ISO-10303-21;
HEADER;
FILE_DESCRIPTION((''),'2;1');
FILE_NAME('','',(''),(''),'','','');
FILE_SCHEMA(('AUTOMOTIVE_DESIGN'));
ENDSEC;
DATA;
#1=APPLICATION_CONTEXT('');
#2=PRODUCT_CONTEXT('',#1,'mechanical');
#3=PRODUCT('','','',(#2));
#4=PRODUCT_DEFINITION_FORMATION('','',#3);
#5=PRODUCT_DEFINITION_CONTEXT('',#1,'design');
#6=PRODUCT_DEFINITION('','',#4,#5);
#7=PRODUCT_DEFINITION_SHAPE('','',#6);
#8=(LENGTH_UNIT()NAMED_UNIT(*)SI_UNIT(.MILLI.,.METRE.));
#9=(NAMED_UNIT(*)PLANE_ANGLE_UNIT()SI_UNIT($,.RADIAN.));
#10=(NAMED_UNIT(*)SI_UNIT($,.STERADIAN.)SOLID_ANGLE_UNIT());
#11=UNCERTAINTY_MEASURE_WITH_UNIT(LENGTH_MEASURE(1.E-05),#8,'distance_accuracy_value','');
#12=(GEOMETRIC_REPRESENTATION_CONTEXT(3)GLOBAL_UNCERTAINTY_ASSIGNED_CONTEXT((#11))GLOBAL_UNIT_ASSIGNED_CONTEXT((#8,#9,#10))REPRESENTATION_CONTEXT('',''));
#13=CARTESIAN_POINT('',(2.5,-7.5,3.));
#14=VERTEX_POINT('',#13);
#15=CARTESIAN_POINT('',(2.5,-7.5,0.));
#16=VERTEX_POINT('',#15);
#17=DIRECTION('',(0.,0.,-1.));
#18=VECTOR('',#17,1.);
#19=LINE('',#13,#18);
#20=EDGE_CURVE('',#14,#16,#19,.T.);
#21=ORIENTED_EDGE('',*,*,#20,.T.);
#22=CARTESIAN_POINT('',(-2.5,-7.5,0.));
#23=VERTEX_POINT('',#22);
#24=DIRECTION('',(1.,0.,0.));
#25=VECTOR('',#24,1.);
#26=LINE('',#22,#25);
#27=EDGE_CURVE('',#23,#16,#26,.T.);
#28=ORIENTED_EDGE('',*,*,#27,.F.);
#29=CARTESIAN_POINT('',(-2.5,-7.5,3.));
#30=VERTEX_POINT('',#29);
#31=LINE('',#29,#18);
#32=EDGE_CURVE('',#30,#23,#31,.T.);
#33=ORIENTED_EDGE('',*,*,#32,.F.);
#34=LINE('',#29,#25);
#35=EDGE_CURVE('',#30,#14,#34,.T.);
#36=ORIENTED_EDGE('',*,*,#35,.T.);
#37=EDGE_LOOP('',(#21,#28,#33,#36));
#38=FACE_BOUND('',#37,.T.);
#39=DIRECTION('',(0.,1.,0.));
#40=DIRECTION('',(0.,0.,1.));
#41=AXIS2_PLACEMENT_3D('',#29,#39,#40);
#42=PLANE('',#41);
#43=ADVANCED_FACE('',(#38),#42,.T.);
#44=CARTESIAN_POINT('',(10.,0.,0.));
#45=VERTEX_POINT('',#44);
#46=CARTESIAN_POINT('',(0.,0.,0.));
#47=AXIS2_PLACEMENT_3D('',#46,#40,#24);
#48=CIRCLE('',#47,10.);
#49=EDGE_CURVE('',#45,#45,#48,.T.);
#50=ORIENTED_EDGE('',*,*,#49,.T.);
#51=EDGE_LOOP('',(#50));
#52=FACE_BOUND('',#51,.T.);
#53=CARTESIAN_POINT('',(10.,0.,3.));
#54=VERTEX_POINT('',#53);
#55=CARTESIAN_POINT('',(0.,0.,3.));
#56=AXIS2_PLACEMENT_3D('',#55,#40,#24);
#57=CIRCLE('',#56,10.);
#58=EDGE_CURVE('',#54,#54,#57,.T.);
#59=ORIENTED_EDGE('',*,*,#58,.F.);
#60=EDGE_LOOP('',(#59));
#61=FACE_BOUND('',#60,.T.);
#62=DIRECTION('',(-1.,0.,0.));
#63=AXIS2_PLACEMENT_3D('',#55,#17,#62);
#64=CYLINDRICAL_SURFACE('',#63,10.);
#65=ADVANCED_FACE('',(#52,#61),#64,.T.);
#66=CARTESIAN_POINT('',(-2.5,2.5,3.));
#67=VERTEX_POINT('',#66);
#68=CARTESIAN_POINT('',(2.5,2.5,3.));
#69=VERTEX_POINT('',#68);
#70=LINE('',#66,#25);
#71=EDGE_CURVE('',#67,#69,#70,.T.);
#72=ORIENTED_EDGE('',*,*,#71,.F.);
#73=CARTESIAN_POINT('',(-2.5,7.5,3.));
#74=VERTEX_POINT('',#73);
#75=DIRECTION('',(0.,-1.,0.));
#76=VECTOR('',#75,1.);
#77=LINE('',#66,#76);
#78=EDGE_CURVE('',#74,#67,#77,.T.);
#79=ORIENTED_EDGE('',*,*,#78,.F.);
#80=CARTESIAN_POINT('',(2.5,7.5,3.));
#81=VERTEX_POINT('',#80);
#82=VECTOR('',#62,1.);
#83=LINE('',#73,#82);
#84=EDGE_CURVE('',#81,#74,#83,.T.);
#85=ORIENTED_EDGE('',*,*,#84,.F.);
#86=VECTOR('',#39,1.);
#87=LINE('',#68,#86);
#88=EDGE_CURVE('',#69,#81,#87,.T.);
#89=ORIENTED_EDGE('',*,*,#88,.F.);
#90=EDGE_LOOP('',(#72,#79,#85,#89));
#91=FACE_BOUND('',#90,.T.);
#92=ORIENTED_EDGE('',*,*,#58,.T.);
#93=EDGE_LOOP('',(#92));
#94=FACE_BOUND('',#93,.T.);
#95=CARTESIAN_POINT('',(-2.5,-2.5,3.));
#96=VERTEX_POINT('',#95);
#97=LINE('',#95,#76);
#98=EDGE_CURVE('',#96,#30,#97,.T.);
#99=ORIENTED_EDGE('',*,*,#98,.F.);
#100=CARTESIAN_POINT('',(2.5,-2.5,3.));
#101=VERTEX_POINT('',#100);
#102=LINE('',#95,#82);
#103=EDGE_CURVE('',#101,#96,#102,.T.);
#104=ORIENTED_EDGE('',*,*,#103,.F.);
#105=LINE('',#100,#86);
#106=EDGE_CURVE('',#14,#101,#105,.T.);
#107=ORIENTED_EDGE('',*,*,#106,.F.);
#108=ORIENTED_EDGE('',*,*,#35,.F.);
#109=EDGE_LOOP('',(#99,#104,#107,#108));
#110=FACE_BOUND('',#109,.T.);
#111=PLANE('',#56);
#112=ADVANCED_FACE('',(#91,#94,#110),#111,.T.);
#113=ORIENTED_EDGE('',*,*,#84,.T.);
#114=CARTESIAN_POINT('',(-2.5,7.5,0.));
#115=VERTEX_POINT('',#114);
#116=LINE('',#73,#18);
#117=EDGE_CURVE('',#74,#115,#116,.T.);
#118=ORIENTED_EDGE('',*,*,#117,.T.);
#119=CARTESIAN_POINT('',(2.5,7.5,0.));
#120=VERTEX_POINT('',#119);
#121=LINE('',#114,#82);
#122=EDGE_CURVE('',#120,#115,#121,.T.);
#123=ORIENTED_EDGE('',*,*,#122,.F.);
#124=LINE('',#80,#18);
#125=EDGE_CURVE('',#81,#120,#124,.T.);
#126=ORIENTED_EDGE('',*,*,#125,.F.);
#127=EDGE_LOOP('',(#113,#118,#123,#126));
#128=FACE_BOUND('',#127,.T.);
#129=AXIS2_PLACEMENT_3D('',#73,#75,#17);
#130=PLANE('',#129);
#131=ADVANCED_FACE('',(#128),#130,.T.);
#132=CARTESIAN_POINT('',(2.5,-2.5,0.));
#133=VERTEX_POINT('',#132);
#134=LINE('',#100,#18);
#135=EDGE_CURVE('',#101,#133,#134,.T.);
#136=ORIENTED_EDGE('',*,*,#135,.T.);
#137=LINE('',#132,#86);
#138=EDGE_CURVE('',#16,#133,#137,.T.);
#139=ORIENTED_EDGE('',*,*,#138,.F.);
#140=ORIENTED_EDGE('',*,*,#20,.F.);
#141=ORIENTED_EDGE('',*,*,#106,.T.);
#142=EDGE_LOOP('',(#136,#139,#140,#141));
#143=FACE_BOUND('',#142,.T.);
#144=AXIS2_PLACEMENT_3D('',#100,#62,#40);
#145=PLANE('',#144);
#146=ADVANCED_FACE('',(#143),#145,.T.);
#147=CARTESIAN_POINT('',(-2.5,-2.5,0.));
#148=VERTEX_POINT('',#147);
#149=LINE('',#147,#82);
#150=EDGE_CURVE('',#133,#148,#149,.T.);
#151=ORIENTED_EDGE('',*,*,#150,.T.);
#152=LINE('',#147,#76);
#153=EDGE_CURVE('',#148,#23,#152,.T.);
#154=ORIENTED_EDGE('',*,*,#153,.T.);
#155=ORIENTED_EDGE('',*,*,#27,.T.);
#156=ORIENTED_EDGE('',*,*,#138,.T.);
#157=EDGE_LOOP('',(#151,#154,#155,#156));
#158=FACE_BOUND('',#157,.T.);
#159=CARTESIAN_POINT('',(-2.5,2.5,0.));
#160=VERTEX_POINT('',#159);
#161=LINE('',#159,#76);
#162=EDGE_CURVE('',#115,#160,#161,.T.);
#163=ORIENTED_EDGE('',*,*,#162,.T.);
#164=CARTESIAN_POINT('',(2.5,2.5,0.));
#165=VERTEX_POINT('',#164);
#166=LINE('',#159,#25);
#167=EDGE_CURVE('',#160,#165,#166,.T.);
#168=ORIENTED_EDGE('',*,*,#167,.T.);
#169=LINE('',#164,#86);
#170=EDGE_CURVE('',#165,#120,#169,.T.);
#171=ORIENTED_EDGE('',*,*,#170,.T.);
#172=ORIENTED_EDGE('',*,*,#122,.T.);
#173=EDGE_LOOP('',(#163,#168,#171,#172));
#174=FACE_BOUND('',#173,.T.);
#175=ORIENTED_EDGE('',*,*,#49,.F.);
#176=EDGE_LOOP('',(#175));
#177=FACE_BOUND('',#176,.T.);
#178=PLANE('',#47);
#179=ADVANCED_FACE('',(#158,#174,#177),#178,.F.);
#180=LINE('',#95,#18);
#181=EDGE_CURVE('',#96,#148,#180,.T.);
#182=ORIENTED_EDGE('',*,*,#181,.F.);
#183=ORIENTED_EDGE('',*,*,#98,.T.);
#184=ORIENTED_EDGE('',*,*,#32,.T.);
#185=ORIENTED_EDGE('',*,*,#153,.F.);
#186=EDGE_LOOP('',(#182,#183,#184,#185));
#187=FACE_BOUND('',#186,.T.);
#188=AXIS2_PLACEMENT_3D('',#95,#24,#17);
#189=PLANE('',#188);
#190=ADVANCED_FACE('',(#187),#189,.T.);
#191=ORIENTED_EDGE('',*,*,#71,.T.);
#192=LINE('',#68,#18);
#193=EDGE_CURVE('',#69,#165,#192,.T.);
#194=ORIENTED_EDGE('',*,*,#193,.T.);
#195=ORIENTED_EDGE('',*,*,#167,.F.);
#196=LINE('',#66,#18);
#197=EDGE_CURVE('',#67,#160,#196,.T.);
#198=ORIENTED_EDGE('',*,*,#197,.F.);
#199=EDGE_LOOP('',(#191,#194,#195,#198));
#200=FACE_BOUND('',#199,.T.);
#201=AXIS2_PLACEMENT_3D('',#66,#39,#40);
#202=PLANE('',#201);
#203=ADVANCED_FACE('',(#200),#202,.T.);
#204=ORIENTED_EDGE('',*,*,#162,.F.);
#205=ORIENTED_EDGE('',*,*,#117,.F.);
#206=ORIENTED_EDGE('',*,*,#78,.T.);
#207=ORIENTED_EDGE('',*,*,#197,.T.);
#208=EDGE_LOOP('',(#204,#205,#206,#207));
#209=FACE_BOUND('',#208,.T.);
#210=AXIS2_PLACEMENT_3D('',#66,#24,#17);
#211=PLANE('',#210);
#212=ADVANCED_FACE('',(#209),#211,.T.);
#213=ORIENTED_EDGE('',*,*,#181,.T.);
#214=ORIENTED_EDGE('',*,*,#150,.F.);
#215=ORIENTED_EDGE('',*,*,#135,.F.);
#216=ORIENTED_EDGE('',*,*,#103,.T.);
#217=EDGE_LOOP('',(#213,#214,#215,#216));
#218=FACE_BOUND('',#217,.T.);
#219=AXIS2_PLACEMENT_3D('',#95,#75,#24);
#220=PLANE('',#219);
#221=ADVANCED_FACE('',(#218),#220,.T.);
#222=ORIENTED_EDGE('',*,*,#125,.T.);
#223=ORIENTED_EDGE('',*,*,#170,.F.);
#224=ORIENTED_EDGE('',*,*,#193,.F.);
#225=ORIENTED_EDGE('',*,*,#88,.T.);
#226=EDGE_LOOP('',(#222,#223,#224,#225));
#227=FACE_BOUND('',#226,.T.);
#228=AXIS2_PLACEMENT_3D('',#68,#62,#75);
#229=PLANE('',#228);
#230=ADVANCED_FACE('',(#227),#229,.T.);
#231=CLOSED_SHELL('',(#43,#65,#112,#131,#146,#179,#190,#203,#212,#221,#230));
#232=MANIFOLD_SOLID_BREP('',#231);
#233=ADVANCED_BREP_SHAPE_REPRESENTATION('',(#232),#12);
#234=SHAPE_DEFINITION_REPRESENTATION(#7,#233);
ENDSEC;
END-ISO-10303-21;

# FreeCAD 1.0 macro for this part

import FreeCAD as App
import Part
import Sketcher

doc = App.newDocument("Part")
body = doc.addObject("PartDesign::Body", "Body")

sketch1 = body.newObject("Sketcher::SketchObject", "Sketch")
sketch1.AttachmentSupport = (doc.getObject("XY_Plane"), [""])
sketch1.MapMode = "FlatFace"
sketch1.addGeometry([
    Part.Circle(App.Vector(0, 0, 0), App.Vector(0, 0, 1), 10),
    Part.LineSegment(App.Vector(2, -8, 0), App.Vector(-2, -8, 0)),
    Part.LineSegment(App.Vector(-2, -8, 0), App.Vector(-2, -2, 0)),
    Part.LineSegment(App.Vector(-2, -2, 0), App.Vector(2, -2, 0)),
    Part.LineSegment(App.Vector(2, -2, 0), App.Vector(2, -8, 0)),
    Part.LineSegment(App.Vector(2, 2, 0), App.Vector(-2, 2, 0)),
    Part.LineSegment(App.Vector(-2, 2, 0), App.Vector(-2, 8, 0)),
    Part.LineSegment(App.Vector(-2, 8, 0), App.Vector(2, 8, 0)),
    Part.LineSegment(App.Vector(2, 8, 0), App.Vector(2, 2, 0)),
], False)
sketch1.addConstraint([
    Sketcher.Constraint("Coincident", 1, 2, 2, 1),
    Sketcher.Constraint("Coincident", 2, 2, 3, 1),
    Sketcher.Constraint("Coincident", 3, 2, 4, 1),
    Sketcher.Constraint("Coincident", 4, 2, 1, 1),
    Sketcher.Constraint("Coincident", 5, 2, 6, 1),
    Sketcher.Constraint("Coincident", 6, 2, 7, 1),
    Sketcher.Constraint("Coincident", 7, 2, 8, 1),
    Sketcher.Constraint("Coincident", 8, 2, 5, 1),
    Sketcher.Constraint("Horizontal", 1),
    Sketcher.Constraint("Vertical", 2),
    Sketcher.Constraint("Horizontal", 3),
    Sketcher.Constraint("Vertical", 4),
    Sketcher.Constraint("Horizontal", 5),
    Sketcher.Constraint("Vertical", 6),
    Sketcher.Constraint("Horizontal", 7),
    Sketcher.Constraint("Vertical", 8),
    Sketcher.Constraint("Coincident", 0, 3, -1, 1),
    Sketcher.Constraint("Symmetric", 3, 2, 5, 2, -1, 1),
    Sketcher.Constraint("Symmetric", 1, 2, 7, 2, -1, 1),
    Sketcher.Constraint("Vertical", 2, 2, 5, 2),
    Sketcher.Constraint("Equal", 7, 2),
    Sketcher.Constraint("Diameter", 0, 20.0),
    Sketcher.Constraint("DistanceX", 1, 2, 1, 1, 5.0),
    Sketcher.Constraint("DistanceY", 2, 2, 5, 2, 5.0),
])
pad1 = body.newObject("PartDesign::Pad", "Pad")
pad1.Profile = sketch1
pad1.Length = 3

doc.recompute()
